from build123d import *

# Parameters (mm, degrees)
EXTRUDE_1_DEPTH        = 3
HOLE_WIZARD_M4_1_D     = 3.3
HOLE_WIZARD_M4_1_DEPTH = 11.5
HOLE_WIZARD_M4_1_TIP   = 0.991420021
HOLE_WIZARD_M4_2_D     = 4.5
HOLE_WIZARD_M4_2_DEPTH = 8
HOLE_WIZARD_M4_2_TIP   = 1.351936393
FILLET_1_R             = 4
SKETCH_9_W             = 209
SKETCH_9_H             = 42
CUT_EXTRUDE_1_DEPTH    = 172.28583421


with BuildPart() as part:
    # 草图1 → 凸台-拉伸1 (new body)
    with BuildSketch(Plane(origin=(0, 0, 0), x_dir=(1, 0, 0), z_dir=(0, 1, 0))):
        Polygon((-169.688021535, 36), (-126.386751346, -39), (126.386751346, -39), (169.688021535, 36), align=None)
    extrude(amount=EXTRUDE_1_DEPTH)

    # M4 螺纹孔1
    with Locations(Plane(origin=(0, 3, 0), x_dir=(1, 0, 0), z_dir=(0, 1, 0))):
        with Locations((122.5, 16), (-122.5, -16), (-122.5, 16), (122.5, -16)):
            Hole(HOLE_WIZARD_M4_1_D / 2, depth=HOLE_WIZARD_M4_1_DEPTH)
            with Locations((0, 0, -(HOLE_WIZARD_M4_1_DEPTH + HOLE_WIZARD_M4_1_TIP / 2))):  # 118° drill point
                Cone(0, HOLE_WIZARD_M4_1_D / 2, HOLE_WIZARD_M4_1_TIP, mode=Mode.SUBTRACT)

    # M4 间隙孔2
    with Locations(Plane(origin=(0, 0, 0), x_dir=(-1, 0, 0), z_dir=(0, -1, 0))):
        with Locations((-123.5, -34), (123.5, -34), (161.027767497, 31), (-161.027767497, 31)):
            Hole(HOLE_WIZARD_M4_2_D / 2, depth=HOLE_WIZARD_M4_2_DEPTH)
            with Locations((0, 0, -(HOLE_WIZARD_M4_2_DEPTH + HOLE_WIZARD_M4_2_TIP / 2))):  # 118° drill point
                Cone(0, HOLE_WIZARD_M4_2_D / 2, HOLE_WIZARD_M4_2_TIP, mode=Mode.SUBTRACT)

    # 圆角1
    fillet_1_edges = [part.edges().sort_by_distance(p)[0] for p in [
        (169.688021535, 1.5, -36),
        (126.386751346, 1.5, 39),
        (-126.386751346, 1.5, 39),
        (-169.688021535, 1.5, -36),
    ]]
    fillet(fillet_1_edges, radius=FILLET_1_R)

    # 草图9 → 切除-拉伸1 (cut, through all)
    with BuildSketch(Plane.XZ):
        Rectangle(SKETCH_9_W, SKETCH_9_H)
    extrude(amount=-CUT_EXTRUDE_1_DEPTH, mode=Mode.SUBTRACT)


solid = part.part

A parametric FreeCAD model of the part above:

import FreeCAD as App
import Part
import Sketcher
from FreeCAD import Vector
Q = App.Units.Quantity


def edges_at(feature, points):
    """Names of the edges that pass closest to the given points."""
    edges = feature.Shape.Edges
    near = lambda p: min(range(len(edges)), key=lambda i: edges[i].distToShape(Part.Vertex(*p))[0])
    return sorted({f"Edge{near(p) + 1}" for p in points})

doc = App.newDocument("Part")
body = doc.addObject("PartDesign::Body", "Body")

sketch1 = body.newObject("Sketcher::SketchObject", "Sketch")
sketch1.AttachmentSupport = (doc.getObject("XZ_Plane"), [""])
sketch1.MapMode = "FlatFace"
sketch1.addGeometry(Part.LineSegment(Vector(-170, -36, 0), Vector(-126, 39, 0)), False)
sketch1.addGeometry(Part.LineSegment(Vector(-126, 39, 0), Vector(126, 39, 0)), False)
sketch1.addGeometry(Part.LineSegment(Vector(126, 39, 0), Vector(170, -36, 0)), False)
sketch1.addGeometry(Part.LineSegment(Vector(170, -36, 0), Vector(-170, -36, 0)), False)
sketch1.addConstraint(Sketcher.Constraint("Coincident", 0, 2, 1, 1))
sketch1.addConstraint(Sketcher.Constraint("Coincident", 1, 2, 2, 1))
sketch1.addConstraint(Sketcher.Constraint("Coincident", 2, 2, 3, 1))
sketch1.addConstraint(Sketcher.Constraint("Coincident", 3, 2, 0, 1))
sketch1.addConstraint(Sketcher.Constraint("Horizontal", 1))
sketch1.addConstraint(Sketcher.Constraint("Horizontal", 3))
sketch1.addConstraint(Sketcher.Constraint("Equal", 0, 2))
sketch1.addConstraint(Sketcher.Constraint("Angle", 0, Q("60 deg")))
sketch1.addConstraint(Sketcher.Constraint("DistanceY", -1, 1, 0, 2, 39.0))
sketch1.addConstraint(Sketcher.Constraint("DistanceY", 2, 2, -1, 1, 36.0))
sketch1.addConstraint(Sketcher.Constraint("DistanceX", 1, 1, 1, 2, 252.773503))
sketch1.addConstraint(Sketcher.Constraint("DistanceX", 0, 2, -1, 1, 126.386751))
pad1 = body.newObject("PartDesign::Pad", "Pad")
pad1.Profile = sketch1
pad1.Length = 3
pad1.Reversed = True

sketch2 = body.newObject("Sketcher::SketchObject", "Sketch001")
sketch2.AttachmentSupport = (doc.getObject("XZ_Plane"), [""])
sketch2.MapMode = "FlatFace"
sketch2.AttachmentOffset = App.Placement(Vector(0, 0, -3), App.Rotation())
sketch2.addGeometry(Part.Circle(Vector(122.5, -16, 0), Vector(0, 0, 1), 1.6), False)
sketch2.addGeometry(Part.Circle(Vector(-122.5, 16, 0), Vector(0, 0, 1), 1.6), False)
sketch2.addGeometry(Part.Circle(Vector(-122.5, -16, 0), Vector(0, 0, 1), 1.6), False)
sketch2.addGeometry(Part.Circle(Vector(122.5, 16, 0), Vector(0, 0, 1), 1.6), False)
sketch2.addConstraint(Sketcher.Constraint("Equal", 0, 1))
sketch2.addConstraint(Sketcher.Constraint("Equal", 1, 2))
sketch2.addConstraint(Sketcher.Constraint("Equal", 2, 3))
sketch2.addConstraint(Sketcher.Constraint("Symmetric", 0, 3, 1, 3, -1, 1))
sketch2.addConstraint(Sketcher.Constraint("Symmetric", 2, 3, 3, 3, -1, 1))
sketch2.addConstraint(Sketcher.Constraint("Symmetric", 0, 3, 2, 3, -2))
sketch2.addConstraint(Sketcher.Constraint("Diameter", 0, 3.3))
sketch2.addConstraint(Sketcher.Constraint("DistanceY", 0, 3, -1, 1, 16.0))
sketch2.addConstraint(Sketcher.Constraint("DistanceX", 1, 3, 0, 3, 245.0))
doc.recompute()
hole = body.newObject("PartDesign::Hole", "Hole")
hole.Profile = sketch2
hole.ThreadType = "None"
hole.Diameter = 3.3
hole.DepthType = "Dimension"
hole.Depth = 11.5
hole.DrillPoint = "Angled"
hole.DrillPointAngle = 118
hole.Reversed = True

sketch3 = body.newObject("Sketcher::SketchObject", "Sketch002")
sketch3.AttachmentSupport = (doc.getObject("XZ_Plane"), [""])
sketch3.MapMode = "FlatFace"
sketch3.addGeometry(Part.Circle(Vector(123.5, 34, 0), Vector(0, 0, 1), 2.2), False)
sketch3.addGeometry(Part.Circle(Vector(-123.5, 34, 0), Vector(0, 0, 1), 2.2), False)
sketch3.addGeometry(Part.Circle(Vector(-161, -31, 0), Vector(0, 0, 1), 2.2), False)
sketch3.addGeometry(Part.Circle(Vector(161, -31, 0), Vector(0, 0, 1), 2.2), False)
sketch3.addConstraint(Sketcher.Constraint("Equal", 0, 1))
sketch3.addConstraint(Sketcher.Constraint("Equal", 1, 2))
sketch3.addConstraint(Sketcher.Constraint("Equal", 2, 3))
sketch3.addConstraint(Sketcher.Constraint("Symmetric", 0, 3, 1, 3, -2))
sketch3.addConstraint(Sketcher.Constraint("Symmetric", 2, 3, 3, 3, -2))
sketch3.addConstraint(Sketcher.Constraint("Diameter", 0, 4.5))
sketch3.addConstraint(Sketcher.Constraint("DistanceY", -1, 1, 0, 3, 34.0))
sketch3.addConstraint(Sketcher.Constraint("DistanceY", 2, 3, -1, 1, 31.0))
sketch3.addConstraint(Sketcher.Constraint("DistanceX", 1, 3, 0, 3, 247.0))
sketch3.addConstraint(Sketcher.Constraint("DistanceX", 2, 3, -1, 1, 161.027767))
doc.recompute()
hole2 = body.newObject("PartDesign::Hole", "Hole001")
hole2.Profile = sketch3
hole2.ThreadType = "None"
hole2.Diameter = 4.5
hole2.DepthType = "Dimension"
hole2.Depth = 8
hole2.DrillPoint = "Angled"
hole2.DrillPointAngle = 118
doc.recompute()

fillet = body.newObject("PartDesign::Fillet", "Fillet")
fillet.Base = (hole2, edges_at(hole2, [
    (169.688, 1.5, -36),
    (126.387, 1.5, 39),
    (-126.387, 1.5, 39),
    (-169.688, 1.5, -36),
]))
fillet.Radius = 4

sketch4 = body.newObject("Sketcher::SketchObject", "Sketch003")
sketch4.AttachmentSupport = (doc.getObject("XZ_Plane"), [""])
sketch4.MapMode = "FlatFace"
sketch4.addGeometry(Part.LineSegment(Vector(-104, 21, 0), Vector(-104, -21, 0)), False)
sketch4.addGeometry(Part.LineSegment(Vector(-104, -21, 0), Vector(104, -21, 0)), False)
sketch4.addGeometry(Part.LineSegment(Vector(104, -21, 0), Vector(104, 21, 0)), False)
sketch4.addGeometry(Part.LineSegment(Vector(104, 21, 0), Vector(-104, 21, 0)), False)
sketch4.addConstraint(Sketcher.Constraint("Coincident", 0, 2, 1, 1))
sketch4.addConstraint(Sketcher.Constraint("Coincident", 1, 2, 2, 1))
sketch4.addConstraint(Sketcher.Constraint("Coincident", 2, 2, 3, 1))
sketch4.addConstraint(Sketcher.Constraint("Coincident", 3, 2, 0, 1))
sketch4.addConstraint(Sketcher.Constraint("Vertical", 0))
sketch4.addConstraint(Sketcher.Constraint("Horizontal", 1))
sketch4.addConstraint(Sketcher.Constraint("Vertical", 2))
sketch4.addConstraint(Sketcher.Constraint("Horizontal", 3))
sketch4.addConstraint(Sketcher.Constraint("Symmetric", 0, 2, 2, 2, -1, 1))
sketch4.addConstraint(Sketcher.Constraint("DistanceX", 1, 1, 1, 2, 209.0))
sketch4.addConstraint(Sketcher.Constraint("DistanceY", 0, 2, 0, 1, 42.0))
pocket1 = body.newObject("PartDesign::Pocket", "Pocket")
pocket1.Profile = sketch4
pocket1.Type = "ThroughAll"

doc.recompute()
